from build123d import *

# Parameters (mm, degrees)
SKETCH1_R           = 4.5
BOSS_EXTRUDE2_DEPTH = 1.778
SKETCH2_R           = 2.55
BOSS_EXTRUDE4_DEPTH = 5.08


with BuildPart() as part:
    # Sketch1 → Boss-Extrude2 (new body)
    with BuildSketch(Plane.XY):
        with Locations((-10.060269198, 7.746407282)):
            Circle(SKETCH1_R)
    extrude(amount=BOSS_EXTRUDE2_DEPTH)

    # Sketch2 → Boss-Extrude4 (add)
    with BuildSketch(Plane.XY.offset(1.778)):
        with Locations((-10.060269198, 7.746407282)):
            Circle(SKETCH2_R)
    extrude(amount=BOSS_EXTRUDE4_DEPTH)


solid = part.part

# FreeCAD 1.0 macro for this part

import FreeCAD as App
import Part
import Sketcher

V = App.Vector

doc = App.newDocument("Part")
params = doc.addObject("Spreadsheet::Sheet", "Params")
for row, (alias, value) in enumerate([
    ("sketch1_diameter", "9 mm"),
    ("pad1_length", "1.778 mm"),
    ("sketch2_diameter", "5.1 mm"),
    ("pad2_length", "5.08 mm"),
], start=1):
    params.set(f"A{row}", alias)
    params.set(f"B{row}", "=" + value)
    params.setAlias(f"B{row}", alias)

body = doc.addObject("PartDesign::Body", "Body")

# Sketch on XY plane
sketch1 = doc.addObject("Sketcher::SketchObject", "Sketch")
body.addObject(sketch1)
sketch1.AttachmentSupport = (doc.XY_Plane, [""])
sketch1.MapMode = "FlatFace"
sketch1.addGeometry(Part.Circle(V(-10.060269, 7.746407, 0), V(0, 0, 1), 4.5), False)
sketch1.addConstraint(Sketcher.Constraint("Diameter", 0, 9.0))
sketch1.addConstraint(Sketcher.Constraint("DistanceX", 0, 3, -1, 1, 10.060269))
sketch1.addConstraint(Sketcher.Constraint("DistanceY", -1, 1, 0, 3, 7.746407))
sketch1.setExpression("Constraints[0]", "Params.sketch1_diameter")
pad1 = doc.addObject("PartDesign::Pad", "Pad")
body.addObject(pad1)
pad1.Profile = sketch1
pad1.setExpression("Length", "Params.pad1_length")

# Sketch on XY plane
sketch2 = doc.addObject("Sketcher::SketchObject", "Sketch001")
body.addObject(sketch2)
sketch2.AttachmentSupport = (doc.XY_Plane, [""])
sketch2.MapMode = "FlatFace"
sketch2.AttachmentOffset = App.Placement(V(0, 0, 1.778), App.Rotation())
sketch2.addGeometry(Part.Circle(V(-10.060269, 7.746407, 0), V(0, 0, 1), 2.55), False)
sketch2.addConstraint(Sketcher.Constraint("Diameter", 0, 5.1))
sketch2.addConstraint(Sketcher.Constraint("DistanceX", 0, 3, -1, 1, 10.060269))
sketch2.addConstraint(Sketcher.Constraint("DistanceY", -1, 1, 0, 3, 7.746407))
sketch2.setExpression("Constraints[0]", "Params.sketch2_diameter")
pad2 = doc.addObject("PartDesign::Pad", "Pad001")
body.addObject(pad2)
pad2.Profile = sketch2
pad2.setExpression("Length", "Params.pad2_length")

doc.recompute()
